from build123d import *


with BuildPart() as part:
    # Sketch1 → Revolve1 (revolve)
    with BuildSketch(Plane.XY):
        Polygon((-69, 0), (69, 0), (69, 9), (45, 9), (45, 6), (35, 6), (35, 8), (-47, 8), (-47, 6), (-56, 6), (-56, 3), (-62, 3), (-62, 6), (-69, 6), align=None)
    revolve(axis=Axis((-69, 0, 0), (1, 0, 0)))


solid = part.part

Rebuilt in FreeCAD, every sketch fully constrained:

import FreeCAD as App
import Part
import Sketcher
from FreeCAD import Vector
Q = App.Units.Quantity


def add_polygon(sketch, points):
    """Adds a closed chain of lines whose ends are joined by coincident constraints."""
    first, n = sketch.GeometryCount, len(points)
    for a, b in zip(points, points[1:] + points[:1]):
        sketch.addGeometry(Part.LineSegment(App.Vector(*a, 0), App.Vector(*b, 0)), False)
    for i in range(n):
        sketch.addConstraint(Sketcher.Constraint("Coincident", first + i, 2, first + (i + 1) % n, 1))

doc = App.newDocument("Part")
body = doc.addObject("PartDesign::Body", "Body")

sketch1 = body.newObject("Sketcher::SketchObject", "Sketch")
sketch1.AttachmentSupport = (doc.getObject("XY_Plane"), [""])
sketch1.MapMode = "FlatFace"
add_polygon(sketch1, [(-69, 0), (69, 0), (69, 9), (45, 9), (45, 6), (35, 6), (35, 8), (-47, 8), (-47, 6), (-56, 6), (-56, 3), (-62, 3), (-62, 6), (-69, 6)])
sketch1.addConstraint(Sketcher.Constraint("Horizontal", 0))
sketch1.addConstraint(Sketcher.Constraint("Vertical", 1))
sketch1.addConstraint(Sketcher.Constraint("Horizontal", 2))
sketch1.addConstraint(Sketcher.Constraint("Vertical", 3))
sketch1.addConstraint(Sketcher.Constraint("Horizontal", 4))
sketch1.addConstraint(Sketcher.Constraint("Vertical", 5))
sketch1.addConstraint(Sketcher.Constraint("Horizontal", 6))
sketch1.addConstraint(Sketcher.Constraint("Vertical", 7))
sketch1.addConstraint(Sketcher.Constraint("Horizontal", 8))
sketch1.addConstraint(Sketcher.Constraint("Vertical", 9))
sketch1.addConstraint(Sketcher.Constraint("Horizontal", 10))
sketch1.addConstraint(Sketcher.Constraint("Vertical", 11))
sketch1.addConstraint(Sketcher.Constraint("Horizontal", 12))
sketch1.addConstraint(Sketcher.Constraint("Vertical", 13))
sketch1.addConstraint(Sketcher.Constraint("Symmetric", 0, 2, 13, 2, -1, 1))
sketch1.addConstraint(Sketcher.Constraint("Horizontal", 4, 2, 7, 2))
sketch1.addConstraint(Sketcher.Constraint("Horizontal", 8, 2, 11, 2))
sketch1.addConstraint(Sketcher.Constraint("Equal", 8, 1))
sketch1.addConstraint(Sketcher.Constraint("Equal", 3, 9))
sketch1.addConstraint(Sketcher.Constraint("Equal", 10, 13))
sketch1.addConstraint(Sketcher.Constraint("DistanceX", 0, 1, 0, 2, Q("138 mm")))
sketch1.addConstraint(Sketcher.Constraint("DistanceX", 2, 2, 2, 1, Q("24 mm")))
sketch1.addConstraint(Sketcher.Constraint("DistanceX", 4, 2, 4, 1, Q("10 mm")))
sketch1.addConstraint(Sketcher.Constraint("DistanceX", 6, 2, 6, 1, Q("82 mm")))
sketch1.addConstraint(Sketcher.Constraint("DistanceX", 8, 2, 8, 1, Q("9 mm")))
sketch1.addConstraint(Sketcher.Constraint("DistanceX", 10, 2, 10, 1, Q("6 mm")))
sketch1.addConstraint(Sketcher.Constraint("DistanceY", 5, 1, 5, 2, Q("2 mm")))
revolution = body.newObject("PartDesign::Revolution", "Revolution")
revolution.Profile = sketch1
revolution.ReferenceAxis = (sketch1, ["H_Axis"])
revolution.Angle = 360

doc.recompute()
